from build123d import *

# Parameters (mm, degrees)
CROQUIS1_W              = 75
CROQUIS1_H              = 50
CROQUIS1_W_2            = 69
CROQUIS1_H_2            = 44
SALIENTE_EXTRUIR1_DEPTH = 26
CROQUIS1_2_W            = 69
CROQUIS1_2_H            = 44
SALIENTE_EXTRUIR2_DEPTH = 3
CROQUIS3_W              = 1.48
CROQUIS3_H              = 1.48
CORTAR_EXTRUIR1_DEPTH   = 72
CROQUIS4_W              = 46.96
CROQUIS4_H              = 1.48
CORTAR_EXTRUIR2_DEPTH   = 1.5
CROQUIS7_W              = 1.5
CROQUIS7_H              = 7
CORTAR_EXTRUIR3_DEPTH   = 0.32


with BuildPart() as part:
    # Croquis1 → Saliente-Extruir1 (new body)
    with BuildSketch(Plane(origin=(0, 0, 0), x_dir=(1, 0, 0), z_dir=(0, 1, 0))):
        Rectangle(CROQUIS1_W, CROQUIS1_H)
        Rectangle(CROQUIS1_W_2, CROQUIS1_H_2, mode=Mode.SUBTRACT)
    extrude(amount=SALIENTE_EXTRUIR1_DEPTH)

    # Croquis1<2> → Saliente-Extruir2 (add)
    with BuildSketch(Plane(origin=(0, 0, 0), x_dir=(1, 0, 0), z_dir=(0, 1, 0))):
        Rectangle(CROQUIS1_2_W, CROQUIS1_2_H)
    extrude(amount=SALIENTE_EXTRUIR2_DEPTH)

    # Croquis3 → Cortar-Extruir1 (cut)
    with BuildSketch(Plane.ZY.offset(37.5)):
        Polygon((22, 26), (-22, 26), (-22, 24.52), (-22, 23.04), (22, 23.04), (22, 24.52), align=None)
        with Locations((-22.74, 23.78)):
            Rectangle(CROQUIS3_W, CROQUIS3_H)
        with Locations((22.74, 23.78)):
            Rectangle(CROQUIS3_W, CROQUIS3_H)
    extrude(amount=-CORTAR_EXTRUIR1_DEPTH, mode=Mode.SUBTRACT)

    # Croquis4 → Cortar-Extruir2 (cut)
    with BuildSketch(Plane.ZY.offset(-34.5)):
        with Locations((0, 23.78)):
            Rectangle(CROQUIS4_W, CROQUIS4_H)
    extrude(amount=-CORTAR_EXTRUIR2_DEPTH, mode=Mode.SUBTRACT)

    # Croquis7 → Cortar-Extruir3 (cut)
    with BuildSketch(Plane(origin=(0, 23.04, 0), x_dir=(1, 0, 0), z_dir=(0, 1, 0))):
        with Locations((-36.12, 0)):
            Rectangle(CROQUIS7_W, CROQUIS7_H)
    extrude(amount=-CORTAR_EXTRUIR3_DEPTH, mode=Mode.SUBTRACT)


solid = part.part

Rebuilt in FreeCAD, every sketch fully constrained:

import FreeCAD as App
import Part
import Sketcher

doc = App.newDocument("Part")
body = doc.addObject("PartDesign::Body", "Body")

# Sketch on XZ plane
sketch1 = body.newObject("Sketcher::SketchObject", "Sketch")
sketch1.AttachmentSupport = (doc.getObject("XZ_Plane"), [""])
sketch1.MapMode = "FlatFace"
sketch1.addGeometry([
    Part.LineSegment(App.Vector(-38, -25, 0), App.Vector(-38, 25, 0)),  # 0
    Part.LineSegment(App.Vector(-38, 25, 0), App.Vector(38, 25, 0)),  # 1
    Part.LineSegment(App.Vector(38, 25, 0), App.Vector(38, -25, 0)),  # 2
    Part.LineSegment(App.Vector(38, -25, 0), App.Vector(-38, -25, 0)),  # 3
    Part.LineSegment(App.Vector(34, 22, 0), App.Vector(-34, 22, 0)),  # 4
    Part.LineSegment(App.Vector(-34, 22, 0), App.Vector(-34, -22, 0)),  # 5
    Part.LineSegment(App.Vector(-34, -22, 0), App.Vector(34, -22, 0)),  # 6
    Part.LineSegment(App.Vector(34, -22, 0), App.Vector(34, 22, 0)),  # 7
], False)
sketch1.addConstraint([
    Sketcher.Constraint("Coincident", 0, 2, 1, 1),
    Sketcher.Constraint("Coincident", 1, 2, 2, 1),
    Sketcher.Constraint("Coincident", 2, 2, 3, 1),
    Sketcher.Constraint("Coincident", 3, 2, 0, 1),
    Sketcher.Constraint("Coincident", 4, 2, 5, 1),
    Sketcher.Constraint("Coincident", 5, 2, 6, 1),
    Sketcher.Constraint("Coincident", 6, 2, 7, 1),
    Sketcher.Constraint("Coincident", 7, 2, 4, 1),
    Sketcher.Constraint("Vertical", 0),
    Sketcher.Constraint("Horizontal", 1),
    Sketcher.Constraint("Vertical", 2),
    Sketcher.Constraint("Horizontal", 3),
    Sketcher.Constraint("Horizontal", 4),
    Sketcher.Constraint("Vertical", 5),
    Sketcher.Constraint("Horizontal", 6),
    Sketcher.Constraint("Vertical", 7),
    Sketcher.Constraint("Symmetric", 0, 2, 2, 2, -1, 1),
    Sketcher.Constraint("Symmetric", 4, 2, 6, 2, -1, 1),
    Sketcher.Constraint("DistanceX", 1, 1, 1, 2, 75.0),
    Sketcher.Constraint("DistanceX", 4, 2, 4, 1, 69.0),
    Sketcher.Constraint("DistanceY", 0, 1, 0, 2, 50.0),
    Sketcher.Constraint("DistanceY", 5, 2, 5, 1, 44.0),
])
pad1 = body.newObject("PartDesign::Pad", "Pad")
pad1.Profile = sketch1
pad1.Length = 26
pad1.Reversed = True

# Sketch on XZ plane
sketch2 = body.newObject("Sketcher::SketchObject", "Sketch001")
sketch2.AttachmentSupport = (doc.getObject("XZ_Plane"), [""])
sketch2.MapMode = "FlatFace"
sketch2.addGeometry([
    Part.LineSegment(App.Vector(-34, -22, 0), App.Vector(-34, 22, 0)),
    Part.LineSegment(App.Vector(-34, 22, 0), App.Vector(34, 22, 0)),
    Part.LineSegment(App.Vector(34, 22, 0), App.Vector(34, -22, 0)),
    Part.LineSegment(App.Vector(34, -22, 0), App.Vector(-34, -22, 0)),
], False)
sketch2.addConstraint([
    Sketcher.Constraint("Coincident", 0, 2, 1, 1),
    Sketcher.Constraint("Coincident", 1, 2, 2, 1),
    Sketcher.Constraint("Coincident", 2, 2, 3, 1),
    Sketcher.Constraint("Coincident", 3, 2, 0, 1),
    Sketcher.Constraint("Vertical", 0),
    Sketcher.Constraint("Horizontal", 1),
    Sketcher.Constraint("Vertical", 2),
    Sketcher.Constraint("Horizontal", 3),
    Sketcher.Constraint("Symmetric", 0, 2, 2, 2, -1, 1),
    Sketcher.Constraint("DistanceX", 1, 1, 1, 2, 69.0),
    Sketcher.Constraint("DistanceY", 0, 1, 0, 2, 44.0),
])
pad2 = body.newObject("PartDesign::Pad", "Pad001")
pad2.Profile = sketch2
pad2.Length = 3
pad2.Reversed = True

# Sketch on YZ plane
sketch3 = body.newObject("Sketcher::SketchObject", "Sketch002")
sketch3.AttachmentSupport = (doc.getObject("YZ_Plane"), [""])
sketch3.MapMode = "FlatFace"
sketch3.AttachmentOffset = App.Placement(App.Vector(0, 0, -37.5), App.Rotation())
sketch3.addGeometry([
    Part.LineSegment(App.Vector(26, 22, 0), App.Vector(26, -22, 0)),  # 0
    Part.LineSegment(App.Vector(26, -22, 0), App.Vector(24.5, -22, 0)),  # 1
    Part.LineSegment(App.Vector(24.5, -22, 0), App.Vector(24.5, -23.5, 0)),  # 2
    Part.LineSegment(App.Vector(24.5, -23.5, 0), App.Vector(23, -23.5, 0)),  # 3
    Part.LineSegment(App.Vector(23, -23.5, 0), App.Vector(23, 23.5, 0)),  # 4
    Part.LineSegment(App.Vector(23, 23.5, 0), App.Vector(24.5, 23.5, 0)),  # 5
    Part.LineSegment(App.Vector(24.5, 23.5, 0), App.Vector(24.5, 22, 0)),  # 6
    Part.LineSegment(App.Vector(24.5, 22, 0), App.Vector(26, 22, 0)),  # 7
], False)
sketch3.addConstraint([
    Sketcher.Constraint("Coincident", 0, 2, 1, 1),
    Sketcher.Constraint("Coincident", 1, 2, 2, 1),
    Sketcher.Constraint("Coincident", 2, 2, 3, 1),
    Sketcher.Constraint("Coincident", 3, 2, 4, 1),
    Sketcher.Constraint("Coincident", 4, 2, 5, 1),
    Sketcher.Constraint("Coincident", 5, 2, 6, 1),
    Sketcher.Constraint("Coincident", 6, 2, 7, 1),
    Sketcher.Constraint("Coincident", 7, 2, 0, 1),
    Sketcher.Constraint("Vertical", 0),
    Sketcher.Constraint("Horizontal", 1),
    Sketcher.Constraint("Vertical", 2),
    Sketcher.Constraint("Horizontal", 3),
    Sketcher.Constraint("Vertical", 4),
    Sketcher.Constraint("Horizontal", 5),
    Sketcher.Constraint("Vertical", 6),
    Sketcher.Constraint("Horizontal", 7),
    Sketcher.Constraint("Symmetric", 2, 2, 5, 2, -1),
    Sketcher.Constraint("Equal", 1, 3),
    Sketcher.Constraint("Equal", 7, 2),
    Sketcher.Constraint("Equal", 2, 6),
    Sketcher.Constraint("DistanceY", 0, 2, 0, 1, 44.0),
    Sketcher.Constraint("DistanceX", -1, 1, 0, 2, 26.0),
    Sketcher.Constraint("DistanceX", 1, 2, 1, 1, 1.48),
])
pocket1 = body.newObject("PartDesign::Pocket", "Pocket")
pocket1.Profile = sketch3
pocket1.Length = 72
pocket1.Reversed = True

# Sketch on YZ plane
sketch4 = body.newObject("Sketcher::SketchObject", "Sketch003")
sketch4.AttachmentSupport = (doc.getObject("YZ_Plane"), [""])
sketch4.MapMode = "FlatFace"
sketch4.AttachmentOffset = App.Placement(App.Vector(0, 0, 34.5), App.Rotation())
sketch4.addGeometry([
    Part.LineSegment(App.Vector(24.5, -23.5, 0), App.Vector(23, -23.5, 0)),
    Part.LineSegment(App.Vector(23, -23.5, 0), App.Vector(23, 23.5, 0)),
    Part.LineSegment(App.Vector(23, 23.5, 0), App.Vector(24.5, 23.5, 0)),
    Part.LineSegment(App.Vector(24.5, 23.5, 0), App.Vector(24.5, -23.5, 0)),
], False)
sketch4.addConstraint([
    Sketcher.Constraint("Coincident", 0, 2, 1, 1),
    Sketcher.Constraint("Coincident", 1, 2, 2, 1),
    Sketcher.Constraint("Coincident", 2, 2, 3, 1),
    Sketcher.Constraint("Coincident", 3, 2, 0, 1),
    Sketcher.Constraint("Horizontal", 0),
    Sketcher.Constraint("Vertical", 1),
    Sketcher.Constraint("Horizontal", 2),
    Sketcher.Constraint("Vertical", 3),
    Sketcher.Constraint("DistanceX", 0, 2, 0, 1, 1.48),
    Sketcher.Constraint("DistanceY", 1, 1, 1, 2, 46.96),
    Sketcher.Constraint("DistanceX", -1, 1, 0, 2, 23.04),
    Sketcher.Constraint("DistanceY", 0, 2, -1, 1, 23.48),
])
pocket2 = body.newObject("PartDesign::Pocket", "Pocket001")
pocket2.Profile = sketch4
pocket2.Length = 1.5
pocket2.Reversed = True

# Sketch on XZ plane
sketch5 = body.newObject("Sketcher::SketchObject", "Sketch004")
sketch5.AttachmentSupport = (doc.getObject("XZ_Plane"), [""])
sketch5.MapMode = "FlatFace"
sketch5.AttachmentOffset = App.Placement(App.Vector(0, 0, -23.04), App.Rotation())
sketch5.addGeometry([
    Part.LineSegment(App.Vector(-36.9, -3.5, 0), App.Vector(-36.9, 3.5, 0)),
    Part.LineSegment(App.Vector(-36.9, 3.5, 0), App.Vector(-35.4, 3.5, 0)),
    Part.LineSegment(App.Vector(-35.4, 3.5, 0), App.Vector(-35.4, -3.5, 0)),
    Part.LineSegment(App.Vector(-35.4, -3.5, 0), App.Vector(-36.9, -3.5, 0)),
], False)
sketch5.addConstraint([
    Sketcher.Constraint("Coincident", 0, 2, 1, 1),
    Sketcher.Constraint("Coincident", 1, 2, 2, 1),
    Sketcher.Constraint("Coincident", 2, 2, 3, 1),
    Sketcher.Constraint("Coincident", 3, 2, 0, 1),
    Sketcher.Constraint("Vertical", 0),
    Sketcher.Constraint("Horizontal", 1),
    Sketcher.Constraint("Vertical", 2),
    Sketcher.Constraint("Horizontal", 3),
    Sketcher.Constraint("DistanceY", 0, 1, 0, 2, 7.0),
    Sketcher.Constraint("DistanceX", 1, 1, 1, 2, 1.5),
    Sketcher.Constraint("DistanceY", -1, 1, 0, 2, 3.5),
    Sketcher.Constraint("DistanceX", 0, 2, -1, 1, 36.87),
])
pocket3 = body.newObject("PartDesign::Pocket", "Pocket002")
pocket3.Profile = sketch5
pocket3.Length = 0.32
pocket3.Reversed = True

doc.recompute()
